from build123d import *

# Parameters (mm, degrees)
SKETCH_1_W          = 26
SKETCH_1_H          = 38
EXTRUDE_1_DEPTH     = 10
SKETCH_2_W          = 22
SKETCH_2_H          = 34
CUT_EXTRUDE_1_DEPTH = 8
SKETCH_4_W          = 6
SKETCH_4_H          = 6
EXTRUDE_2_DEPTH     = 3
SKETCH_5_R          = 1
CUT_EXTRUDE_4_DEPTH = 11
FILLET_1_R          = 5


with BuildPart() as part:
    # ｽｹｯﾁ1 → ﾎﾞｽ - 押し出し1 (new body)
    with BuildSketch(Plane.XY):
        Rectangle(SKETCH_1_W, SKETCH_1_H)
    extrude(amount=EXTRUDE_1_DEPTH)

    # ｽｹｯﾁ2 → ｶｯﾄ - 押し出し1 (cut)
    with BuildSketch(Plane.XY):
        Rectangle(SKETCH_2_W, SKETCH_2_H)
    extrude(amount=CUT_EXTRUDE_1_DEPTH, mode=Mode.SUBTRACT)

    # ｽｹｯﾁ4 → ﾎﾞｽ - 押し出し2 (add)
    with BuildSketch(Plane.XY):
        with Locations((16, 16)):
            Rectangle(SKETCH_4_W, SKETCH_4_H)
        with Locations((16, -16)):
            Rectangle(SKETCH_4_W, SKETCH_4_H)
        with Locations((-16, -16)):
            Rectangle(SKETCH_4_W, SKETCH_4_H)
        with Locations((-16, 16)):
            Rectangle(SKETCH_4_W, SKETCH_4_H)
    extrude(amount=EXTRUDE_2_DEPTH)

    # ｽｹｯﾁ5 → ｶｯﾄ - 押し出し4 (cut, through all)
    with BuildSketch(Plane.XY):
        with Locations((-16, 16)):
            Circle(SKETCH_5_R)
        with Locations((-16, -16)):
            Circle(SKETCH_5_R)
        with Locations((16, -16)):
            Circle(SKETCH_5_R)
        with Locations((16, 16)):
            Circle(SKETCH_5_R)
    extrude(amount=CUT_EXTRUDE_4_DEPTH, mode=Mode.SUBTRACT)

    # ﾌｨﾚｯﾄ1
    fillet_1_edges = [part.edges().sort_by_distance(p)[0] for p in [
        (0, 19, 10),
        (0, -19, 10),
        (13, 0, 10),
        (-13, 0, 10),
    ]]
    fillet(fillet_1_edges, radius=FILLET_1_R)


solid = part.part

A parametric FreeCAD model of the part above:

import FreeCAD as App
import Part
import Sketcher


def edges_at(feature, points):
    """Names of the edges that pass closest to the given points."""
    edges = feature.Shape.Edges
    near = lambda p: min(range(len(edges)), key=lambda i: edges[i].distToShape(Part.Vertex(*p))[0])
    return sorted({f"Edge{near(p) + 1}" for p in points})


def add_polygon(sketch, points):
    """Adds a closed chain of lines whose ends are joined by coincident constraints."""
    first, n = sketch.GeometryCount, len(points)
    for a, b in zip(points, points[1:] + points[:1]):
        sketch.addGeometry(Part.LineSegment(App.Vector(*a, 0), App.Vector(*b, 0)), False)
    for i in range(n):
        sketch.addConstraint(Sketcher.Constraint("Coincident", first + i, 2, first + (i + 1) % n, 1))

doc = App.newDocument("Part")
body = doc.addObject("PartDesign::Body", "Body")

sketch1 = body.newObject("Sketcher::SketchObject", "Sketch")
sketch1.AttachmentSupport = (doc.getObject("XY_Plane"), [""])
sketch1.MapMode = "FlatFace"
add_polygon(sketch1, [(-13, 19), (-13, -19), (13, -19), (13, 19)])
sketch1.addConstraint(Sketcher.Constraint("Vertical", 0))
sketch1.addConstraint(Sketcher.Constraint("Horizontal", 1))
sketch1.addConstraint(Sketcher.Constraint("Vertical", 2))
sketch1.addConstraint(Sketcher.Constraint("Horizontal", 3))
sketch1.addConstraint(Sketcher.Constraint("Symmetric", 0, 2, 2, 2, -1, 1))
sketch1.addConstraint(Sketcher.Constraint("DistanceX", 1, 1, 1, 2, 26.0))
sketch1.addConstraint(Sketcher.Constraint("DistanceY", 0, 2, 0, 1, 38.0))
pad1 = body.newObject("PartDesign::Pad", "Pad")
pad1.Profile = sketch1
pad1.Length = 10

sketch2 = body.newObject("Sketcher::SketchObject", "Sketch001")
sketch2.AttachmentSupport = (doc.getObject("XY_Plane"), [""])
sketch2.MapMode = "FlatFace"
add_polygon(sketch2, [(-11, 17), (-11, -17), (11, -17), (11, 17)])
sketch2.addConstraint(Sketcher.Constraint("Vertical", 0))
sketch2.addConstraint(Sketcher.Constraint("Horizontal", 1))
sketch2.addConstraint(Sketcher.Constraint("Vertical", 2))
sketch2.addConstraint(Sketcher.Constraint("Horizontal", 3))
sketch2.addConstraint(Sketcher.Constraint("Symmetric", 0, 2, 2, 2, -1, 1))
sketch2.addConstraint(Sketcher.Constraint("DistanceX", 1, 1, 1, 2, 22.0))
sketch2.addConstraint(Sketcher.Constraint("DistanceY", 0, 2, 0, 1, 34.0))
pocket1 = body.newObject("PartDesign::Pocket", "Pocket")
pocket1.Profile = sketch2
pocket1.Length = 8
pocket1.Reversed = True

sketch3 = body.newObject("Sketcher::SketchObject", "Sketch002")
sketch3.AttachmentSupport = (doc.getObject("XY_Plane"), [""])
sketch3.MapMode = "FlatFace"
add_polygon(sketch3, [(13, 19), (13, 13), (19, 13), (19, 19)])
add_polygon(sketch3, [(13, -13), (13, -19), (19, -19), (19, -13)])
add_polygon(sketch3, [(-19, -13), (-19, -19), (-13, -19), (-13, -13)])
add_polygon(sketch3, [(-19, 19), (-19, 13), (-13, 13), (-13, 19)])
sketch3.addConstraint(Sketcher.Constraint("Vertical", 0))
sketch3.addConstraint(Sketcher.Constraint("Horizontal", 1))
sketch3.addConstraint(Sketcher.Constraint("Vertical", 2))
sketch3.addConstraint(Sketcher.Constraint("Horizontal", 3))
sketch3.addConstraint(Sketcher.Constraint("Vertical", 4))
sketch3.addConstraint(Sketcher.Constraint("Horizontal", 5))
sketch3.addConstraint(Sketcher.Constraint("Vertical", 6))
sketch3.addConstraint(Sketcher.Constraint("Horizontal", 7))
sketch3.addConstraint(Sketcher.Constraint("Vertical", 8))
sketch3.addConstraint(Sketcher.Constraint("Horizontal", 9))
sketch3.addConstraint(Sketcher.Constraint("Vertical", 10))
sketch3.addConstraint(Sketcher.Constraint("Horizontal", 11))
sketch3.addConstraint(Sketcher.Constraint("Vertical", 12))
sketch3.addConstraint(Sketcher.Constraint("Horizontal", 13))
sketch3.addConstraint(Sketcher.Constraint("Vertical", 14))
sketch3.addConstraint(Sketcher.Constraint("Horizontal", 15))
sketch3.addConstraint(Sketcher.Constraint("Symmetric", 2, 2, 8, 2, -1, 1))
sketch3.addConstraint(Sketcher.Constraint("Symmetric", 0, 2, 10, 2, -1, 1))
sketch3.addConstraint(Sketcher.Constraint("Symmetric", 6, 2, 12, 2, -1, 1))
sketch3.addConstraint(Sketcher.Constraint("Symmetric", 4, 2, 14, 2, -1, 1))
sketch3.addConstraint(Sketcher.Constraint("Symmetric", 5, 2, 8, 2, -2))
sketch3.addConstraint(Sketcher.Constraint("Symmetric", 7, 2, 10, 2, -2))
sketch3.addConstraint(Sketcher.Constraint("Equal", 15, 0))
sketch3.addConstraint(Sketcher.Constraint("DistanceX", 1, 1, 1, 2, 6.0))
sketch3.addConstraint(Sketcher.Constraint("DistanceX", -1, 1, 0, 2, 13.0))
sketch3.addConstraint(Sketcher.Constraint("DistanceY", -1, 1, 0, 2, 13.0))
pad2 = body.newObject("PartDesign::Pad", "Pad001")
pad2.Profile = sketch3
pad2.Length = 3

sketch4 = body.newObject("Sketcher::SketchObject", "Sketch003")
sketch4.AttachmentSupport = (doc.getObject("XY_Plane"), [""])
sketch4.MapMode = "FlatFace"
sketch4.addGeometry(Part.Circle(App.Vector(-16, 16, 0), App.Vector(0, 0, 1), 1), False)
sketch4.addGeometry(Part.Circle(App.Vector(-16, -16, 0), App.Vector(0, 0, 1), 1), False)
sketch4.addGeometry(Part.Circle(App.Vector(16, -16, 0), App.Vector(0, 0, 1), 1), False)
sketch4.addGeometry(Part.Circle(App.Vector(16, 16, 0), App.Vector(0, 0, 1), 1), False)
sketch4.addConstraint(Sketcher.Constraint("Equal", 0, 1))
sketch4.addConstraint(Sketcher.Constraint("Equal", 1, 2))
sketch4.addConstraint(Sketcher.Constraint("Equal", 2, 3))
sketch4.addConstraint(Sketcher.Constraint("Symmetric", 0, 3, 2, 3, -1, 1))
sketch4.addConstraint(Sketcher.Constraint("Symmetric", 1, 3, 3, 3, -1, 1))
sketch4.addConstraint(Sketcher.Constraint("Symmetric", 1, 3, 2, 3, -2))
sketch4.addConstraint(Sketcher.Constraint("Diameter", 0, 2.0))
sketch4.addConstraint(Sketcher.Constraint("DistanceX", 0, 3, -1, 1, 16.0))
sketch4.addConstraint(Sketcher.Constraint("DistanceY", -1, 1, 0, 3, 16.0))
pocket2 = body.newObject("PartDesign::Pocket", "Pocket001")
pocket2.Profile = sketch4
pocket2.Type = "ThroughAll"
pocket2.Reversed = True
doc.recompute()

fillet = body.newObject("PartDesign::Fillet", "Fillet")
fillet.Base = (pocket2, edges_at(pocket2, [
    (0, 19, 10),
    (0, -19, 10),
    (13, 0, 10),
    (-13, 0, 10),
]))
fillet.Radius = 5

doc.recompute()
